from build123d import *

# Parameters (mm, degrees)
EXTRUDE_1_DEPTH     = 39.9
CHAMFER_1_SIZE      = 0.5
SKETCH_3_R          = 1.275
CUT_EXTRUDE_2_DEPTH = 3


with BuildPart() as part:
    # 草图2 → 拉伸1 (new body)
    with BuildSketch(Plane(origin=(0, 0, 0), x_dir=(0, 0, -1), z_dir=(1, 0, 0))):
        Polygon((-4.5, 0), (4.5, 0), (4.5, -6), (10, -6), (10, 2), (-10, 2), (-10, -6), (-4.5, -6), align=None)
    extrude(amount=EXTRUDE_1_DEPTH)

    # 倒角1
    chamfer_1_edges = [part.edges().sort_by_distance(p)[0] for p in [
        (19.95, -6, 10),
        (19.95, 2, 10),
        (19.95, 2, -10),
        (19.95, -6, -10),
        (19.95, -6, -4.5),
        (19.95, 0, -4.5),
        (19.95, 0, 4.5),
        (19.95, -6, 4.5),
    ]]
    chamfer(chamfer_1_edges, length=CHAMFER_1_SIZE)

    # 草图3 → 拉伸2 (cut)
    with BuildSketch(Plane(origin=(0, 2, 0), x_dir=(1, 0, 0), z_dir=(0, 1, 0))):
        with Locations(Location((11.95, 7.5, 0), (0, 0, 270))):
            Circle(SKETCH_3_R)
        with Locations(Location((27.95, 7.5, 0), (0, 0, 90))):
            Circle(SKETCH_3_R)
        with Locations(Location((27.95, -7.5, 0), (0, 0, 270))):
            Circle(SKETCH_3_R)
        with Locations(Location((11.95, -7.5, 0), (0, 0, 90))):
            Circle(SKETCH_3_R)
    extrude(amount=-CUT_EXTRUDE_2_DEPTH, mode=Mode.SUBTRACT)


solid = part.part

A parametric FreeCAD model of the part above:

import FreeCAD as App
import Part
import Sketcher

V = App.Vector
Q = App.Units.Quantity


def edges_at(feature, points):
    """Names of the edges that pass closest to the given points."""
    edges = feature.Shape.Edges
    near = lambda p: min(range(len(edges)), key=lambda i: edges[i].distToShape(Part.Vertex(*p))[0])
    return sorted({f"Edge{near(p) + 1}" for p in points})


def add_polygon(sketch, points):
    """Adds a closed chain of lines whose ends are joined by coincident constraints."""
    first, n = sketch.GeometryCount, len(points)
    for a, b in zip(points, points[1:] + points[:1]):
        sketch.addGeometry(Part.LineSegment(App.Vector(*a, 0), App.Vector(*b, 0)), False)
    for i in range(n):
        sketch.addConstraint(Sketcher.Constraint("Coincident", first + i, 2, first + (i + 1) % n, 1))

doc = App.newDocument("Part")
body = doc.addObject("PartDesign::Body", "Body")

# Sketch on YZ plane
sketch1 = doc.addObject("Sketcher::SketchObject", "Sketch")
body.addObject(sketch1)
sketch1.AttachmentSupport = (doc.YZ_Plane, [""])
sketch1.MapMode = "FlatFace"
add_polygon(sketch1, [(0, 4), (0, -4), (-6, -4), (-6, -10), (2, -10), (2, 10), (-6, 10), (-6, 4)])  # lines 0-7
sketch1.addConstraint(Sketcher.Constraint("Vertical", 0))
sketch1.addConstraint(Sketcher.Constraint("Horizontal", 1))
sketch1.addConstraint(Sketcher.Constraint("Vertical", 2))
sketch1.addConstraint(Sketcher.Constraint("Horizontal", 3))
sketch1.addConstraint(Sketcher.Constraint("Vertical", 4))
sketch1.addConstraint(Sketcher.Constraint("Horizontal", 5))
sketch1.addConstraint(Sketcher.Constraint("Vertical", 6))
sketch1.addConstraint(Sketcher.Constraint("Horizontal", 7))
sketch1.addConstraint(Sketcher.Constraint("Symmetric", 0, 2, 7, 2, -1, 1))
sketch1.addConstraint(Sketcher.Constraint("Symmetric", 2, 2, 5, 2, -1))
sketch1.addConstraint(Sketcher.Constraint("DistanceX", 1, 2, 1, 1, Q("6 mm")))
sketch1.addConstraint(Sketcher.Constraint("DistanceX", 3, 1, 3, 2, Q("8 mm")))
sketch1.addConstraint(Sketcher.Constraint("DistanceY", 0, 2, 0, 1, Q("9 mm")))
sketch1.addConstraint(Sketcher.Constraint("DistanceY", 4, 1, 4, 2, Q("20 mm")))
pad1 = doc.addObject("PartDesign::Pad", "Pad")
body.addObject(pad1)
pad1.Profile = sketch1
pad1.Length = 39.9
doc.recompute()

chamfer = doc.addObject("PartDesign::Chamfer", "Chamfer")
body.addObject(chamfer)
chamfer.Base = (pad1, edges_at(pad1, [
    (19.95, -6, 10),
    (19.95, 2, 10),
    (19.95, 2, -10),
    (19.95, -6, -10),
    (19.95, -6, -4.5),
    (19.95, 0, -4.5),
    (19.95, 0, 4.5),
    (19.95, -6, 4.5),
]))
chamfer.Size = 0.5

# Sketch on XZ plane
sketch2 = doc.addObject("Sketcher::SketchObject", "Sketch001")
body.addObject(sketch2)
sketch2.AttachmentSupport = (doc.XZ_Plane, [""])
sketch2.MapMode = "FlatFace"
sketch2.AttachmentOffset = App.Placement(V(0, 0, -2), App.Rotation())
sketch2.addGeometry(Part.Circle(V(11.9, -7.5, 0), V(0, 0, 1), 1.3), False)
sketch2.addGeometry(Part.Circle(V(27.9, -7.5, 0), V(0, 0, 1), 1.3), False)
sketch2.addGeometry(Part.Circle(V(27.9, 7.5, 0), V(0, 0, 1), 1.3), False)
sketch2.addGeometry(Part.Circle(V(11.9, 7.5, 0), V(0, 0, 1), 1.3), False)
sketch2.addConstraint(Sketcher.Constraint("Equal", 0, 1))
sketch2.addConstraint(Sketcher.Constraint("Equal", 1, 2))
sketch2.addConstraint(Sketcher.Constraint("Equal", 2, 3))
sketch2.addConstraint(Sketcher.Constraint("Symmetric", 1, 3, 2, 3, -1))
sketch2.addConstraint(Sketcher.Constraint("Symmetric", 0, 3, 3, 3, -1))
sketch2.addConstraint(Sketcher.Constraint("Horizontal", 0, 3, 1, 3))
sketch2.addConstraint(Sketcher.Constraint("Diameter", 0, Q("2.55 mm")))
sketch2.addConstraint(Sketcher.Constraint("DistanceX", 0, 3, 1, 3, Q("16 mm")))
sketch2.addConstraint(Sketcher.Constraint("DistanceY", 1, 3, 2, 3, Q("15 mm")))
sketch2.addConstraint(Sketcher.Constraint("DistanceX", -1, 1, 0, 3, Q("11.95 mm")))
pocket1 = doc.addObject("PartDesign::Pocket", "Pocket")
body.addObject(pocket1)
pocket1.Profile = sketch2
pocket1.Length = 3
pocket1.Reversed = True

doc.recompute()
